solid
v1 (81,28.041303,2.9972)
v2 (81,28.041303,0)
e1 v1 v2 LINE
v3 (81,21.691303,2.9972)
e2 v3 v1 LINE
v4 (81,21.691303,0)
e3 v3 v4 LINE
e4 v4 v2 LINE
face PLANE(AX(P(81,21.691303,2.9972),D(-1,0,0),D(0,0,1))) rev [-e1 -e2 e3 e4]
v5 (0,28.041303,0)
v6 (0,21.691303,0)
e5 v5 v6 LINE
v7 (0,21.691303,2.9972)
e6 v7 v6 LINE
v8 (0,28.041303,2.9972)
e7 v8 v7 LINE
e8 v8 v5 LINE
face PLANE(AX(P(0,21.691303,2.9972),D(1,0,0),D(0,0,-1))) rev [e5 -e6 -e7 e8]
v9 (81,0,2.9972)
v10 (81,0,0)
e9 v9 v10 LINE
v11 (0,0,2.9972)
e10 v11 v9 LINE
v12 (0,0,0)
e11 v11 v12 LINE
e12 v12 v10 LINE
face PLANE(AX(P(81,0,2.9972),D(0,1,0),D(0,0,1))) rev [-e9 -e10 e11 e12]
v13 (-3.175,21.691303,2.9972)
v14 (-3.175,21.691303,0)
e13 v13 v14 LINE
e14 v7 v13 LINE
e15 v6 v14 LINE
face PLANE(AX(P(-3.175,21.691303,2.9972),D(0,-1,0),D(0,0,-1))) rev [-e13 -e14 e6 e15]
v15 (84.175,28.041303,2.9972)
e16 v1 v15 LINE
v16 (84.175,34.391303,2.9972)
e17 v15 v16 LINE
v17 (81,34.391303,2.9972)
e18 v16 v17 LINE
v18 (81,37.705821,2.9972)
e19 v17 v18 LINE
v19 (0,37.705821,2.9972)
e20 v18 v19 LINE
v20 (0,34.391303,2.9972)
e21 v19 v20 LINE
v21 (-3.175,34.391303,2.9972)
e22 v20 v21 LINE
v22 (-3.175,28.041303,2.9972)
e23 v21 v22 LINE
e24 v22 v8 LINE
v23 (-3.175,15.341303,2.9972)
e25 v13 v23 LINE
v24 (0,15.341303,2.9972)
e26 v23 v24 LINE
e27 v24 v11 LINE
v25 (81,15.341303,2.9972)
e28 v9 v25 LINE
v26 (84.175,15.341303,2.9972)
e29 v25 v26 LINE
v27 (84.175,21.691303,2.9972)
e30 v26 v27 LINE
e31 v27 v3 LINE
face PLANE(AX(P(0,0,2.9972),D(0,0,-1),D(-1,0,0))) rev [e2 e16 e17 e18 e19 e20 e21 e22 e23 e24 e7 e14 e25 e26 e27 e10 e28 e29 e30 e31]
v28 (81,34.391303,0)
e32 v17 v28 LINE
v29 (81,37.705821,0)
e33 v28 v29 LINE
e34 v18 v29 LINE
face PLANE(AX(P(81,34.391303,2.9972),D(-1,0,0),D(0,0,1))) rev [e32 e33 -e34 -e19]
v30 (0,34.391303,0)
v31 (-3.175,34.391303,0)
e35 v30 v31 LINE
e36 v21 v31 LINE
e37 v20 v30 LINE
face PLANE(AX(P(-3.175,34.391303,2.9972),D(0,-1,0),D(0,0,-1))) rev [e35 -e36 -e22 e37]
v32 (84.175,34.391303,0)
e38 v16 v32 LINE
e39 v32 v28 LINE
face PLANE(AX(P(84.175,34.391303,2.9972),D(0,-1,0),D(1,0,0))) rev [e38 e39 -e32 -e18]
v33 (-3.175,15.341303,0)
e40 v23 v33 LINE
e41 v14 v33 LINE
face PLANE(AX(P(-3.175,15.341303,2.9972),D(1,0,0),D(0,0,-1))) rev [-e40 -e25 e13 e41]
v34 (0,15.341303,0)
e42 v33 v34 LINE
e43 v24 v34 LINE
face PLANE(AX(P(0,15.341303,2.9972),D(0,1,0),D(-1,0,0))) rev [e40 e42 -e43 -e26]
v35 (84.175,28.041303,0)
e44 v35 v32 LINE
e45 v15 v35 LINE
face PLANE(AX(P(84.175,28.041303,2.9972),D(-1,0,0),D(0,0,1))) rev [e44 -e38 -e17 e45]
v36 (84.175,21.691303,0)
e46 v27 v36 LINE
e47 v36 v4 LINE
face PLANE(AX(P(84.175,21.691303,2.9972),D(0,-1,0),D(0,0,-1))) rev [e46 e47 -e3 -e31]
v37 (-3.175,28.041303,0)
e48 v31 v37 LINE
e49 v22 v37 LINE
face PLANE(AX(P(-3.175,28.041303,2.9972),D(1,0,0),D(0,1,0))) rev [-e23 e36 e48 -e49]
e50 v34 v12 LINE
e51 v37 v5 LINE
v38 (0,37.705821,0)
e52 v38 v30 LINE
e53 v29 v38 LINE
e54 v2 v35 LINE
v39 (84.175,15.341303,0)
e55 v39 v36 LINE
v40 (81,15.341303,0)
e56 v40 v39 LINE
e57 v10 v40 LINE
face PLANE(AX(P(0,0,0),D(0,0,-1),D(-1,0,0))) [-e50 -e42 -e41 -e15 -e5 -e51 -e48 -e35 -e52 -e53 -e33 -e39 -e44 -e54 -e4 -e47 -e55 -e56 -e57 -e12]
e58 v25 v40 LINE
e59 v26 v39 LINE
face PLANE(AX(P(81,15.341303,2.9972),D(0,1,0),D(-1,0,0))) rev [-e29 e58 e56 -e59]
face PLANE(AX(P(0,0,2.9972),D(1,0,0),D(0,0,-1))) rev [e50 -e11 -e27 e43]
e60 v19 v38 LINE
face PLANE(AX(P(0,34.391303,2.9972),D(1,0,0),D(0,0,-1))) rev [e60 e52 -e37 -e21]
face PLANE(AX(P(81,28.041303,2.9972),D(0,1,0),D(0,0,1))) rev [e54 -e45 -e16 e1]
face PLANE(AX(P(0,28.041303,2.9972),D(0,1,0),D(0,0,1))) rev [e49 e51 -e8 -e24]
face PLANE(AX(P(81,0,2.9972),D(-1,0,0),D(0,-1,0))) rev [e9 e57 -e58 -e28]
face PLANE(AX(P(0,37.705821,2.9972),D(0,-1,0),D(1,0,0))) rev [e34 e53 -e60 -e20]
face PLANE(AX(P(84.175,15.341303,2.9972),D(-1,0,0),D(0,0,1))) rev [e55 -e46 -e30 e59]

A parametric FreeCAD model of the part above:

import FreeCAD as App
import Part
import Sketcher
from FreeCAD import Vector
Q = App.Units.Quantity

doc = App.newDocument("Part")
params = doc.addObject("Spreadsheet::Sheet", "Params")
for row, (alias, value) in enumerate([
    ("sketch1_height", "0.25 in"),
    ("sketch1_width", "0.125 in"),
    ("pad1_length", "0.118 in"),
], start=1):
    params.set(f"A{row}", alias)
    params.set(f"B{row}", "=" + value)
    params.setAlias(f"B{row}", alias)

body = doc.addObject("PartDesign::Body", "Body")

# Sketch on XY plane
sketch1 = body.newObject("Sketcher::SketchObject", "Sketch")
sketch1.AttachmentSupport = (doc.getObject("XY_Plane"), [""])
sketch1.MapMode = "FlatFace"
sketch1.addGeometry([
    Part.LineSegment(Vector(0, 15.3, 0), Vector(0, 0, 0)),  # 0
    Part.LineSegment(Vector(0, 0, 0), Vector(81, 0, 0)),  # 1
    Part.LineSegment(Vector(81, 0, 0), Vector(81, 15.3, 0)),  # 2
    Part.LineSegment(Vector(81, 15.3, 0), Vector(84.2, 15.3, 0)),  # 3
    Part.LineSegment(Vector(84.2, 15.3, 0), Vector(84.2, 21.7, 0)),  # 4
    Part.LineSegment(Vector(84.2, 21.7, 0), Vector(81, 21.7, 0)),  # 5
    Part.LineSegment(Vector(81, 21.7, 0), Vector(81, 28, 0)),  # 6
    Part.LineSegment(Vector(81, 28, 0), Vector(84.2, 28, 0)),  # 7
    Part.LineSegment(Vector(84.2, 28, 0), Vector(84.2, 34.4, 0)),  # 8
    Part.LineSegment(Vector(84.2, 34.4, 0), Vector(81, 34.4, 0)),  # 9
    Part.LineSegment(Vector(81, 34.4, 0), Vector(81, 37.7, 0)),  # 10
    Part.LineSegment(Vector(81, 37.7, 0), Vector(0, 37.7, 0)),  # 11
    Part.LineSegment(Vector(0, 37.7, 0), Vector(0, 34.4, 0)),  # 12
    Part.LineSegment(Vector(0, 34.4, 0), Vector(-3.2, 34.4, 0)),  # 13
    Part.LineSegment(Vector(-3.2, 34.4, 0), Vector(-3.2, 28, 0)),  # 14
    Part.LineSegment(Vector(-3.2, 28, 0), Vector(0, 28, 0)),  # 15
    Part.LineSegment(Vector(0, 28, 0), Vector(0, 21.7, 0)),  # 16
    Part.LineSegment(Vector(0, 21.7, 0), Vector(-3.2, 21.7, 0)),  # 17
    Part.LineSegment(Vector(-3.2, 21.7, 0), Vector(-3.2, 15.3, 0)),  # 18
    Part.LineSegment(Vector(-3.2, 15.3, 0), Vector(0, 15.3, 0)),  # 19
], False)
sketch1.addConstraint([
    Sketcher.Constraint("Coincident", 0, 2, 1, 1),
    Sketcher.Constraint("Coincident", 1, 2, 2, 1),
    Sketcher.Constraint("Coincident", 2, 2, 3, 1),
    Sketcher.Constraint("Coincident", 3, 2, 4, 1),
    Sketcher.Constraint("Coincident", 4, 2, 5, 1),
    Sketcher.Constraint("Coincident", 5, 2, 6, 1),
    Sketcher.Constraint("Coincident", 6, 2, 7, 1),
    Sketcher.Constraint("Coincident", 7, 2, 8, 1),
    Sketcher.Constraint("Coincident", 8, 2, 9, 1),
    Sketcher.Constraint("Coincident", 9, 2, 10, 1),
    Sketcher.Constraint("Coincident", 10, 2, 11, 1),
    Sketcher.Constraint("Coincident", 11, 2, 12, 1),
    Sketcher.Constraint("Coincident", 12, 2, 13, 1),
    Sketcher.Constraint("Coincident", 13, 2, 14, 1),
    Sketcher.Constraint("Coincident", 14, 2, 15, 1),
    Sketcher.Constraint("Coincident", 15, 2, 16, 1),
    Sketcher.Constraint("Coincident", 16, 2, 17, 1),
    Sketcher.Constraint("Coincident", 17, 2, 18, 1),
    Sketcher.Constraint("Coincident", 18, 2, 19, 1),
    Sketcher.Constraint("Coincident", 19, 2, 0, 1),
    Sketcher.Constraint("Vertical", 0),
    Sketcher.Constraint("Horizontal", 1),
    Sketcher.Constraint("Vertical", 2),
    Sketcher.Constraint("Horizontal", 3),
    Sketcher.Constraint("Vertical", 4),
    Sketcher.Constraint("Horizontal", 5),
    Sketcher.Constraint("Vertical", 6),
    Sketcher.Constraint("Horizontal", 7),
    Sketcher.Constraint("Vertical", 8),
    Sketcher.Constraint("Horizontal", 9),
    Sketcher.Constraint("Vertical", 10),
    Sketcher.Constraint("Horizontal", 11),
    Sketcher.Constraint("Vertical", 12),
    Sketcher.Constraint("Horizontal", 13),
    Sketcher.Constraint("Vertical", 14),
    Sketcher.Constraint("Horizontal", 15),
    Sketcher.Constraint("Vertical", 16),
    Sketcher.Constraint("Horizontal", 17),
    Sketcher.Constraint("Vertical", 18),
    Sketcher.Constraint("Horizontal", 19),
    Sketcher.Constraint("Coincident", 0, 2, -1, 1),
    Sketcher.Constraint("PointOnObject", 11, 2, -2),
    Sketcher.Constraint("PointOnObject", 15, 2, -2),
    Sketcher.Constraint("Horizontal", 9, 2, 12, 2),
    Sketcher.Constraint("Horizontal", 7, 2, 14, 2),
    Sketcher.Constraint("Horizontal", 5, 2, 16, 2),
    Sketcher.Constraint("Horizontal", 3, 2, 18, 2),
    Sketcher.Constraint("Vertical", 2, 2, 5, 2),
    Sketcher.Constraint("Vertical", 4, 2, 7, 2),
    Sketcher.Constraint("Vertical", 6, 2, 9, 2),
    Sketcher.Constraint("Vertical", 14, 2, 17, 2),
    Sketcher.Constraint("Equal", 9, 13),
    Sketcher.Constraint("Equal", 4, 6),
    Sketcher.Constraint("Equal", 6, 8),
    Sketcher.Constraint("DistanceY", 4, 1, 4, 2, Q("0.25 in")),
    Sketcher.Constraint("DistanceX", 3, 1, 3, 2, Q("0.125 in")),
    Sketcher.Constraint("DistanceX", 1, 1, 1, 2, Q("81 mm")),
    Sketcher.Constraint("DistanceY", 10, 1, 10, 2, Q("3.314518 mm")),
    Sketcher.Constraint("DistanceY", 0, 2, 0, 1, Q("15.341303 mm")),
])
sketch1.setExpression("Constraints[54]", "Params.sketch1_height")
sketch1.setExpression("Constraints[55]", "Params.sketch1_width")
pad1 = body.newObject("PartDesign::Pad", "Pad")
pad1.Profile = sketch1
pad1.setExpression("Length", "Params.pad1_length")

doc.recompute()
